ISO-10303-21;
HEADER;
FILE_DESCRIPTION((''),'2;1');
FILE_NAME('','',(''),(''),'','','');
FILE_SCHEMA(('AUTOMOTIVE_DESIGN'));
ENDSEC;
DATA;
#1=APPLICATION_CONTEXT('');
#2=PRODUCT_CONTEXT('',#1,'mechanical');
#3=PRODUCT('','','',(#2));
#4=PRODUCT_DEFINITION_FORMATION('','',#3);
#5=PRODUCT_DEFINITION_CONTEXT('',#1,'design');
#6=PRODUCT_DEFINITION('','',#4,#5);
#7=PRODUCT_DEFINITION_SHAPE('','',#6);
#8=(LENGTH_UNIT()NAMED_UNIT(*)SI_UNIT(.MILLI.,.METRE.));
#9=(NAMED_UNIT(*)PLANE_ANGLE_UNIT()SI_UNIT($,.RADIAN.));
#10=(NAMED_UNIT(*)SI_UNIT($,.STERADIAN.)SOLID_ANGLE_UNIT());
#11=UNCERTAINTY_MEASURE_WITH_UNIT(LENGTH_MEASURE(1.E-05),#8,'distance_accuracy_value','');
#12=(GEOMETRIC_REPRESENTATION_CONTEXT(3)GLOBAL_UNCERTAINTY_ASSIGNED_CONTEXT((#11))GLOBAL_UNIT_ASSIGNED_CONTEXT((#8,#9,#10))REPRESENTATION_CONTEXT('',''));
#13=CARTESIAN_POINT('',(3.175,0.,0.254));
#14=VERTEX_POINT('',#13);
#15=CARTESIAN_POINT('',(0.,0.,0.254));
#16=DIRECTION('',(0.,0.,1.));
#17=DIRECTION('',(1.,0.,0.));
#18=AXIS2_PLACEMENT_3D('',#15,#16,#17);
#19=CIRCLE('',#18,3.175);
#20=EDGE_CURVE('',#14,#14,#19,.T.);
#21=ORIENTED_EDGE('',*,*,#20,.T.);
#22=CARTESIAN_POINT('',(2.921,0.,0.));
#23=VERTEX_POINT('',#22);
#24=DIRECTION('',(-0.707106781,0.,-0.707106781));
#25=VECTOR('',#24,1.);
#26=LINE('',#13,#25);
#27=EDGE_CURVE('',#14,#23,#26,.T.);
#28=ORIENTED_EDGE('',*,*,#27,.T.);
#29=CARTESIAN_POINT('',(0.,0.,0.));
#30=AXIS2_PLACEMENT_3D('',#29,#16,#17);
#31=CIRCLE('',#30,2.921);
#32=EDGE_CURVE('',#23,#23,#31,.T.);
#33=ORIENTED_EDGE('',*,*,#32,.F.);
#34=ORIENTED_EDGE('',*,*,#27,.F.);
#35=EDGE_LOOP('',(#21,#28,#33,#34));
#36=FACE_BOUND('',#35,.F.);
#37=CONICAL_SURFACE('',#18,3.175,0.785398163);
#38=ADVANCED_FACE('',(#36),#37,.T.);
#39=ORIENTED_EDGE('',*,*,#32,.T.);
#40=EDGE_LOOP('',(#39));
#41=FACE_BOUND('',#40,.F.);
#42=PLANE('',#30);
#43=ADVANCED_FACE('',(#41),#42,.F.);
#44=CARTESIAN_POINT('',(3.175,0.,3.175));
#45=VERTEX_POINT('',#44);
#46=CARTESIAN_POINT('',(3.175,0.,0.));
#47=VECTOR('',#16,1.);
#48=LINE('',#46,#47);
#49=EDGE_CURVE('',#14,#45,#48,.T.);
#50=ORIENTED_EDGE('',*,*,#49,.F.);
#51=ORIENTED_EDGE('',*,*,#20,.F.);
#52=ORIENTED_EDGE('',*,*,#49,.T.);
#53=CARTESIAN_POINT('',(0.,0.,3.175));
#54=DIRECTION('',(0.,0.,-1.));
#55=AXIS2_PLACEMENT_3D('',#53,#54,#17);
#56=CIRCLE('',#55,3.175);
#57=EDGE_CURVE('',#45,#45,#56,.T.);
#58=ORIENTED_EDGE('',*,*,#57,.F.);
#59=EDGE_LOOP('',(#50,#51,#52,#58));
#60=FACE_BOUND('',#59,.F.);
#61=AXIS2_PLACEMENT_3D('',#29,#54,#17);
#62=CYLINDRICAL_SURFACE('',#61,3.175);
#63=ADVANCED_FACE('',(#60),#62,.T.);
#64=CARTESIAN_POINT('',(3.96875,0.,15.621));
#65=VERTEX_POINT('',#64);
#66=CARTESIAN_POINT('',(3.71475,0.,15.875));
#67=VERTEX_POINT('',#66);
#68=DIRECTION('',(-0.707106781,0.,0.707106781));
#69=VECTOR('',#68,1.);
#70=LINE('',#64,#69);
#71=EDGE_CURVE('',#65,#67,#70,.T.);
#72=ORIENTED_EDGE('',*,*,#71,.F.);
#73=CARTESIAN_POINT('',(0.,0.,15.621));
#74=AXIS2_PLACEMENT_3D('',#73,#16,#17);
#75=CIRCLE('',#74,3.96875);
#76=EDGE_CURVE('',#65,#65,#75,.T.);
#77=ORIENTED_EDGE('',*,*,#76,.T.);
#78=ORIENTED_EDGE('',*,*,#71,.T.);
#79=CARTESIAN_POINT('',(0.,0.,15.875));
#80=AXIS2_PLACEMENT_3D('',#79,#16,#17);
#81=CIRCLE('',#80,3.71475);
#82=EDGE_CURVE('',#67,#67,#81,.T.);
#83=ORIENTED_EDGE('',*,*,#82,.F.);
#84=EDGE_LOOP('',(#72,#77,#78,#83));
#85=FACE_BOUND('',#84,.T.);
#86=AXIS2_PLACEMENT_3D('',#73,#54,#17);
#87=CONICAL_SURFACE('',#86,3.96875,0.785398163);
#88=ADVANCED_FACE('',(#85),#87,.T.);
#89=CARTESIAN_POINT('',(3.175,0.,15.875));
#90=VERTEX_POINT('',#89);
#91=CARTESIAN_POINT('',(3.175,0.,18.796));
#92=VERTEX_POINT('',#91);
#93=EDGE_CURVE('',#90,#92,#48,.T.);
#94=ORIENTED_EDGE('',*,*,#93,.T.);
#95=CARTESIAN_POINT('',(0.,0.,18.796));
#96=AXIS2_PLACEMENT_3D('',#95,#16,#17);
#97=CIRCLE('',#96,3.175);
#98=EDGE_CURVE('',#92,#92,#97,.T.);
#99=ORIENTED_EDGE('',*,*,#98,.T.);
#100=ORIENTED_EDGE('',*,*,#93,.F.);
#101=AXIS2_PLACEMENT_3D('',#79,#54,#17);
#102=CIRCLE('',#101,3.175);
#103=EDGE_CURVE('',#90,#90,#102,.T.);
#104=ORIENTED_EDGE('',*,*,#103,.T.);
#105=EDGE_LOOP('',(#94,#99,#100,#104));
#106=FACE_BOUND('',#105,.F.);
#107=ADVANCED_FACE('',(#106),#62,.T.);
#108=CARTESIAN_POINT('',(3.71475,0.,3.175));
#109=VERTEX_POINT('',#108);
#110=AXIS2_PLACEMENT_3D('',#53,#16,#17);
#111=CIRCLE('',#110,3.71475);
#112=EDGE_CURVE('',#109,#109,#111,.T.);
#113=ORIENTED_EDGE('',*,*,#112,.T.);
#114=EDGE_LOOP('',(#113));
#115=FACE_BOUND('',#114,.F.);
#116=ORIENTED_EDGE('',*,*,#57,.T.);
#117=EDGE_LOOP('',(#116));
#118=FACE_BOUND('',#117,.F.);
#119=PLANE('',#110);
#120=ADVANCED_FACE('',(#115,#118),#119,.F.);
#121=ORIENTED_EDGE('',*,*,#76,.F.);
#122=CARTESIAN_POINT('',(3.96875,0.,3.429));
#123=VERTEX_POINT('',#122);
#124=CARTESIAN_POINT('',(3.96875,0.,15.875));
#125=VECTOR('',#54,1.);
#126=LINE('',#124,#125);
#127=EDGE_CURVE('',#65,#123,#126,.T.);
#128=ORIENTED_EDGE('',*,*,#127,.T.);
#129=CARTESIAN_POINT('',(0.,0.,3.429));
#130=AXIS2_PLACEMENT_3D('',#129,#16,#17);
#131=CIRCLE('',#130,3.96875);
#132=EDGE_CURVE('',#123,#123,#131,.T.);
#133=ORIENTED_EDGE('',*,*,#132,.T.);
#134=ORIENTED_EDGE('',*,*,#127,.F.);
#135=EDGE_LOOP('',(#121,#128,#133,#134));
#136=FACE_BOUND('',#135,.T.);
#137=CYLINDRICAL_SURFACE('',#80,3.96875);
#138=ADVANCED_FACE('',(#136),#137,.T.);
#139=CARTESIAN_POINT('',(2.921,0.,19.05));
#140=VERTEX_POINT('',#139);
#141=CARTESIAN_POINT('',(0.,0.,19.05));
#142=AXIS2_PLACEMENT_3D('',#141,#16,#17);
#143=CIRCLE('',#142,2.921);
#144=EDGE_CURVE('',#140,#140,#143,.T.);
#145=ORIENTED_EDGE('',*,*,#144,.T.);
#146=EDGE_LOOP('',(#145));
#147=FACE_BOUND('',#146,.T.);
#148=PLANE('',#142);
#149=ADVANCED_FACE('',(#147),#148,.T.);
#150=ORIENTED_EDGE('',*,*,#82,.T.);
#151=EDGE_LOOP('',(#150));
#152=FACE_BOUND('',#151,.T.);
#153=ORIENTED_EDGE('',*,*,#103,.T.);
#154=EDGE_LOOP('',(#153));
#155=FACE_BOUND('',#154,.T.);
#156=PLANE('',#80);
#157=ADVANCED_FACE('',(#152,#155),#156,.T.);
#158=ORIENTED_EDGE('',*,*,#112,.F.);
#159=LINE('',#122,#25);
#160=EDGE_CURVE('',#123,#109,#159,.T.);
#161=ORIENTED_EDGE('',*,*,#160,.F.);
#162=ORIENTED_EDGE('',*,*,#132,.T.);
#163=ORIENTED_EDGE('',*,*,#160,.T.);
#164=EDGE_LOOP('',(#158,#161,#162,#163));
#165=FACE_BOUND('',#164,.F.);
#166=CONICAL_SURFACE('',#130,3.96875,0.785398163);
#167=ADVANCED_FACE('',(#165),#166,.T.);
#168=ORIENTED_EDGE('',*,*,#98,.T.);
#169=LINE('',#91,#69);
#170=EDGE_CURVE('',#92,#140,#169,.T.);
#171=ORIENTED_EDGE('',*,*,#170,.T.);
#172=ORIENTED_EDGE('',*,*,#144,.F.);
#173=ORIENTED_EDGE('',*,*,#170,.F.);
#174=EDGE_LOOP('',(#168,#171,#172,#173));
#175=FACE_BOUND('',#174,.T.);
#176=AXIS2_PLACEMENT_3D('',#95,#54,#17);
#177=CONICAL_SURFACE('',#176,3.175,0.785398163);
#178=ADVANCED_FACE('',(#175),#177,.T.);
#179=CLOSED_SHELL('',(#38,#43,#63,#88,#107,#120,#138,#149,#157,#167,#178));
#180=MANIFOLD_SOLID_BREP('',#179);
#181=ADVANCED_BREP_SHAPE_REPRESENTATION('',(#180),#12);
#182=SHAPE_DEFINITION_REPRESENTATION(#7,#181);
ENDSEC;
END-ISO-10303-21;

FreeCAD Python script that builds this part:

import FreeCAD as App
import Part
import Sketcher

V = App.Vector
Q = App.Units.Quantity


def edges_at(feature, points):
    """Names of the edges that pass closest to the given points."""
    edges = feature.Shape.Edges
    near = lambda p: min(range(len(edges)), key=lambda i: edges[i].distToShape(Part.Vertex(*p))[0])
    return sorted({f"Edge{near(p) + 1}" for p in points})

doc = App.newDocument("Part")
body = doc.addObject("PartDesign::Body", "Body")

# Sketch on XY plane
sketch1 = body.newObject("Sketcher::SketchObject", "Sketch")
sketch1.AttachmentSupport = (doc.getObject("XY_Plane"), [""])
sketch1.MapMode = "FlatFace"
sketch1.addGeometry(Part.Circle(V(0, 0, 0), V(0, 0, 1), 3.2), False)
sketch1.addConstraint(Sketcher.Constraint("Coincident", 0, 3, -1, 1))
sketch1.addConstraint(Sketcher.Constraint("Diameter", 0, Q("0.25 in")))
pad1 = body.newObject("PartDesign::Pad", "Pad")
pad1.Profile = sketch1
pad1.Length = Q("0.75 in")

# Sketch on XY plane
sketch2 = body.newObject("Sketcher::SketchObject", "Sketch001")
sketch2.AttachmentSupport = (doc.getObject("XY_Plane"), [""])
sketch2.MapMode = "FlatFace"
sketch2.AttachmentOffset = App.Placement(V(0, 0, 0.625 * 25.4), App.Rotation())
sketch2.addGeometry(Part.Circle(V(0, 0, 0), V(0, 0, 1), 4), False)
sketch2.addConstraint(Sketcher.Constraint("Coincident", 0, 3, -1, 1))
sketch2.addConstraint(Sketcher.Constraint("Diameter", 0, Q("0.3125 in")))
pad2 = body.newObject("PartDesign::Pad", "Pad001")
pad2.Profile = sketch2
pad2.Length = Q("0.5 in")
pad2.Reversed = True
doc.recompute()

chamfer = body.newObject("PartDesign::Chamfer", "Chamfer")
chamfer.Base = (pad2, edges_at(pad2, [
    (-3.175, 0, 19.05),
    (-3.969, 0, 15.875),
    (-3.969, 0, 3.175),
    (-3.175, 0, 0),
]))
chamfer.Size = Q("0.01 in")

doc.recompute()
